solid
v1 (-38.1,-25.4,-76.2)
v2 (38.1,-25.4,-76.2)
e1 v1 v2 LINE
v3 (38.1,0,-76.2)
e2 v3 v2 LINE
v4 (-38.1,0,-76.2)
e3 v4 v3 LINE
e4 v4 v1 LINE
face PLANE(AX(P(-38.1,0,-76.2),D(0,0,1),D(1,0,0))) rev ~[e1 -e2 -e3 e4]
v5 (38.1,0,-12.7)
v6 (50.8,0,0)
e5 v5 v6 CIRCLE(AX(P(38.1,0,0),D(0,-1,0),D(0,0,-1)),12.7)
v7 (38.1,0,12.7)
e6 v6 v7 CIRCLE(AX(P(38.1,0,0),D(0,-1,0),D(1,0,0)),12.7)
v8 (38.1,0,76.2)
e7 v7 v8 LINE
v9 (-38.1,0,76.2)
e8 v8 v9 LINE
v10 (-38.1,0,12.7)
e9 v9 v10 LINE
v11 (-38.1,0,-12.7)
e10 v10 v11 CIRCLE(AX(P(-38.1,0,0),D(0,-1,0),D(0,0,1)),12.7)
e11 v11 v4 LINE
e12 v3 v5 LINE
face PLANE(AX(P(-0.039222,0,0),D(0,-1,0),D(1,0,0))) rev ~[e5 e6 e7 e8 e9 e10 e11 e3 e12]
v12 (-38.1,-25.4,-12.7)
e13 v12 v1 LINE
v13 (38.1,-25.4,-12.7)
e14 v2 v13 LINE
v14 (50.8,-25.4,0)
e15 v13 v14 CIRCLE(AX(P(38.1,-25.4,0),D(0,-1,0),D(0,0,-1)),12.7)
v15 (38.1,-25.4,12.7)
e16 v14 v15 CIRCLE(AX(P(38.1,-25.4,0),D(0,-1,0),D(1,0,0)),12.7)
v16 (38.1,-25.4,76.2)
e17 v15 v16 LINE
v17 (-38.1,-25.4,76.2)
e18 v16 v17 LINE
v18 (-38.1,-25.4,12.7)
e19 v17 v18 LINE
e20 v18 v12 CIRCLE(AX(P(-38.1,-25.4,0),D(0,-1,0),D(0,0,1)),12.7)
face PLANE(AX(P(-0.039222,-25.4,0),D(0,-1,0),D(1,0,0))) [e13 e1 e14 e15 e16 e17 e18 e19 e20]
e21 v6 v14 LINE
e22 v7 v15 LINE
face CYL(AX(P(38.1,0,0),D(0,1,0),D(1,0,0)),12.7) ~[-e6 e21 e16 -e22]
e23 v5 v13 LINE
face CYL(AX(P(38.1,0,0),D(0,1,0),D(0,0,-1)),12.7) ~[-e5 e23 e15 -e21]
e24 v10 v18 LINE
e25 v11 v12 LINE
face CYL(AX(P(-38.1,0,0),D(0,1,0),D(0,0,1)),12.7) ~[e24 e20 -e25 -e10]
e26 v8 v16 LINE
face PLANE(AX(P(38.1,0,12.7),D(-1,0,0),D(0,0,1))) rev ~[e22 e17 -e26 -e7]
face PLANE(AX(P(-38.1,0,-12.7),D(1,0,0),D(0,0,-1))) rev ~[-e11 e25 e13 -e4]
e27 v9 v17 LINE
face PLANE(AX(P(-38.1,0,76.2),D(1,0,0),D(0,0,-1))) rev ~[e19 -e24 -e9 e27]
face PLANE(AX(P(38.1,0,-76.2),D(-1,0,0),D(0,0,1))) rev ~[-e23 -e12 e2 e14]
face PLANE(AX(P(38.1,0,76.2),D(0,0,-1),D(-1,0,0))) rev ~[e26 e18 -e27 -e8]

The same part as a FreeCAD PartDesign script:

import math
import FreeCAD as App
import Part
import Sketcher
from FreeCAD import Vector
Q = App.Units.Quantity

doc = App.newDocument("Part")
params = doc.addObject("Spreadsheet::Sheet", "Params")
for row, (alias, value) in enumerate([
    ("sketch1_radius", "0.5 in"),
    ("sketch1_width", "3 in"),
    ("sketch1_height", "2.5 in"),
    ("pad1_length", "1 in"),
], start=1):
    params.set(f"A{row}", alias)
    params.set(f"B{row}", "=" + value)
    params.setAlias(f"B{row}", alias)

body = doc.addObject("PartDesign::Body", "Body")

# Sketch on XZ plane
sketch1 = doc.addObject("Sketcher::SketchObject", "Sketch")
body.addObject(sketch1)
sketch1.AttachmentSupport = (doc.XZ_Plane, [""])
sketch1.MapMode = "FlatFace"
sketch1.addGeometry([
    Part.LineSegment(Vector(-38, -76, 0), Vector(38, -76, 0)),  # 0
    Part.LineSegment(Vector(38, -76, 0), Vector(38, -13, 0)),  # 1
    Part.ArcOfCircle(Part.Circle(Vector(38, 0, 0), Vector(0, 0, 1), 13), math.radians(-90), math.radians(0)),  # 2
    Part.ArcOfCircle(Part.Circle(Vector(38, 0, 0), Vector(0, 0, 1), 13), math.radians(0), math.radians(90)),  # 3
    Part.LineSegment(Vector(38, 13, 0), Vector(38, 76, 0)),  # 4
    Part.LineSegment(Vector(38, 76, 0), Vector(-38, 76, 0)),  # 5
    Part.LineSegment(Vector(-38, 76, 0), Vector(-38, 13, 0)),  # 6
    Part.ArcOfCircle(Part.Circle(Vector(-38, 0, 0), Vector(0, 0, 1), 13), math.radians(90), math.radians(270)),  # 7
    Part.LineSegment(Vector(-38, -13, 0), Vector(-38, -76, 0)),  # 8
], False)
sketch1.addConstraint([
    Sketcher.Constraint("Coincident", 0, 2, 1, 1),
    Sketcher.Constraint("Coincident", 1, 2, 2, 1),
    Sketcher.Constraint("Tangent", 2, 2, 3, 1),
    Sketcher.Constraint("Coincident", 3, 2, 4, 1),
    Sketcher.Constraint("Coincident", 4, 2, 5, 1),
    Sketcher.Constraint("Coincident", 5, 2, 6, 1),
    Sketcher.Constraint("Coincident", 6, 2, 7, 1),
    Sketcher.Constraint("Coincident", 7, 2, 8, 1),
    Sketcher.Constraint("Coincident", 8, 2, 0, 1),
    Sketcher.Constraint("Horizontal", 0),
    Sketcher.Constraint("Vertical", 1),
    Sketcher.Constraint("Vertical", 4),
    Sketcher.Constraint("Horizontal", 5),
    Sketcher.Constraint("Vertical", 6),
    Sketcher.Constraint("Vertical", 8),
    Sketcher.Constraint("Equal", 2, 3),
    Sketcher.Constraint("Equal", 3, 7),
    Sketcher.Constraint("Symmetric", 2, 3, 7, 3, -1, 1),
    Sketcher.Constraint("Symmetric", 0, 2, 5, 2, -1, 1),
    Sketcher.Constraint("Symmetric", 3, 2, 6, 2, -2),
    Sketcher.Constraint("PointOnObject", 2, 2, -1),
    Sketcher.Constraint("Vertical", 3, 3, 0, 2),
    Sketcher.Constraint("Vertical", 6, 2, 7, 2),
    Sketcher.Constraint("Radius", 2, Q("0.5 in")),
    Sketcher.Constraint("DistanceX", 0, 1, 0, 2, Q("3 in")),
    Sketcher.Constraint("DistanceY", 1, 1, 1, 2, Q("2.5 in")),
])
sketch1.setExpression("Constraints[23]", "Params.sketch1_radius")
sketch1.setExpression("Constraints[24]", "Params.sketch1_width")
sketch1.setExpression("Constraints[25]", "Params.sketch1_height")
pad1 = doc.addObject("PartDesign::Pad", "Pad")
body.addObject(pad1)
pad1.Profile = sketch1
pad1.setExpression("Length", "Params.pad1_length")

doc.recompute()
